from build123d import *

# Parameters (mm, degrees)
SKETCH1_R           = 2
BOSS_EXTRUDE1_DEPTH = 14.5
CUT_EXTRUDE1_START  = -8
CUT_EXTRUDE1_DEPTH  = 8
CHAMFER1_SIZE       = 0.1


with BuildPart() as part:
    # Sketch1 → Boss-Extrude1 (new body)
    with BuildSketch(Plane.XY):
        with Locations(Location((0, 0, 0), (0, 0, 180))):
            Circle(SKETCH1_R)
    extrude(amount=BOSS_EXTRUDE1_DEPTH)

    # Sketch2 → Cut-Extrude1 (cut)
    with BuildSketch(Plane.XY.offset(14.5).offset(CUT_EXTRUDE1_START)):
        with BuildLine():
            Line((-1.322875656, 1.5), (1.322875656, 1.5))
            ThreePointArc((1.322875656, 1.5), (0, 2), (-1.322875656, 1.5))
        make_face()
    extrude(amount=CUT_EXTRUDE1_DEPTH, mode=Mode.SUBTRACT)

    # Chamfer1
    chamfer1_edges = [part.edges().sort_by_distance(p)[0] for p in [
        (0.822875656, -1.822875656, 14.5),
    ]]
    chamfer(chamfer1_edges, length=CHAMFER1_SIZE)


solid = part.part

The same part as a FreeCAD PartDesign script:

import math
import FreeCAD as App
import Part
import Sketcher

V = App.Vector


def edges_at(feature, points):
    """Names of the edges that pass closest to the given points."""
    edges = feature.Shape.Edges
    near = lambda p: min(range(len(edges)), key=lambda i: edges[i].distToShape(Part.Vertex(*p))[0])
    return sorted({f"Edge{near(p) + 1}" for p in points})

doc = App.newDocument("Part")
body = doc.addObject("PartDesign::Body", "Body")

# Sketch on XY plane
sketch1 = body.newObject("Sketcher::SketchObject", "Sketch")
sketch1.AttachmentSupport = (doc.getObject("XY_Plane"), [""])
sketch1.MapMode = "FlatFace"
sketch1.addGeometry(Part.Circle(V(0, 0, 0), V(0, 0, 1), 2), False)
sketch1.addConstraint([
    Sketcher.Constraint("Coincident", 0, 3, -1, 1),
    Sketcher.Constraint("Diameter", 0, 4.0),
])
pad1 = body.newObject("PartDesign::Pad", "Pad")
pad1.Profile = sketch1
pad1.Length = 14.5

# Sketch on XY plane
sketch2 = body.newObject("Sketcher::SketchObject", "Sketch001")
sketch2.AttachmentSupport = (doc.getObject("XY_Plane"), [""])
sketch2.MapMode = "FlatFace"
sketch2.AttachmentOffset = App.Placement(V(0, 0, 6.5), App.Rotation())
sketch2.addGeometry([
    Part.LineSegment(V(-1.3, 1.5, 0), V(1.3, 1.5, 0)),
    Part.ArcOfCircle(Part.Circle(V(0, 0, 0), V(0, 0, 1), 2), math.radians(49), math.radians(131)),
], False)
sketch2.addConstraint([
    Sketcher.Constraint("Coincident", 0, 1, 1, 2),
    Sketcher.Constraint("Coincident", 1, 1, 0, 2),
    Sketcher.Constraint("Horizontal", 0),
    Sketcher.Constraint("Coincident", 1, 3, -1, 1),
    Sketcher.Constraint("Radius", 1, 2.0),
    Sketcher.Constraint("DistanceY", -1, 1, 0, 1, 1.5),
])
pocket1 = body.newObject("PartDesign::Pocket", "Pocket")
pocket1.Profile = sketch2
pocket1.Length = 8
pocket1.Reversed = True
doc.recompute()

chamfer = body.newObject("PartDesign::Chamfer", "Chamfer")
chamfer.Base = (pocket1, edges_at(pocket1, [(0.823, -1.823, 14.5)]))
chamfer.Size = 0.1

doc.recompute()
